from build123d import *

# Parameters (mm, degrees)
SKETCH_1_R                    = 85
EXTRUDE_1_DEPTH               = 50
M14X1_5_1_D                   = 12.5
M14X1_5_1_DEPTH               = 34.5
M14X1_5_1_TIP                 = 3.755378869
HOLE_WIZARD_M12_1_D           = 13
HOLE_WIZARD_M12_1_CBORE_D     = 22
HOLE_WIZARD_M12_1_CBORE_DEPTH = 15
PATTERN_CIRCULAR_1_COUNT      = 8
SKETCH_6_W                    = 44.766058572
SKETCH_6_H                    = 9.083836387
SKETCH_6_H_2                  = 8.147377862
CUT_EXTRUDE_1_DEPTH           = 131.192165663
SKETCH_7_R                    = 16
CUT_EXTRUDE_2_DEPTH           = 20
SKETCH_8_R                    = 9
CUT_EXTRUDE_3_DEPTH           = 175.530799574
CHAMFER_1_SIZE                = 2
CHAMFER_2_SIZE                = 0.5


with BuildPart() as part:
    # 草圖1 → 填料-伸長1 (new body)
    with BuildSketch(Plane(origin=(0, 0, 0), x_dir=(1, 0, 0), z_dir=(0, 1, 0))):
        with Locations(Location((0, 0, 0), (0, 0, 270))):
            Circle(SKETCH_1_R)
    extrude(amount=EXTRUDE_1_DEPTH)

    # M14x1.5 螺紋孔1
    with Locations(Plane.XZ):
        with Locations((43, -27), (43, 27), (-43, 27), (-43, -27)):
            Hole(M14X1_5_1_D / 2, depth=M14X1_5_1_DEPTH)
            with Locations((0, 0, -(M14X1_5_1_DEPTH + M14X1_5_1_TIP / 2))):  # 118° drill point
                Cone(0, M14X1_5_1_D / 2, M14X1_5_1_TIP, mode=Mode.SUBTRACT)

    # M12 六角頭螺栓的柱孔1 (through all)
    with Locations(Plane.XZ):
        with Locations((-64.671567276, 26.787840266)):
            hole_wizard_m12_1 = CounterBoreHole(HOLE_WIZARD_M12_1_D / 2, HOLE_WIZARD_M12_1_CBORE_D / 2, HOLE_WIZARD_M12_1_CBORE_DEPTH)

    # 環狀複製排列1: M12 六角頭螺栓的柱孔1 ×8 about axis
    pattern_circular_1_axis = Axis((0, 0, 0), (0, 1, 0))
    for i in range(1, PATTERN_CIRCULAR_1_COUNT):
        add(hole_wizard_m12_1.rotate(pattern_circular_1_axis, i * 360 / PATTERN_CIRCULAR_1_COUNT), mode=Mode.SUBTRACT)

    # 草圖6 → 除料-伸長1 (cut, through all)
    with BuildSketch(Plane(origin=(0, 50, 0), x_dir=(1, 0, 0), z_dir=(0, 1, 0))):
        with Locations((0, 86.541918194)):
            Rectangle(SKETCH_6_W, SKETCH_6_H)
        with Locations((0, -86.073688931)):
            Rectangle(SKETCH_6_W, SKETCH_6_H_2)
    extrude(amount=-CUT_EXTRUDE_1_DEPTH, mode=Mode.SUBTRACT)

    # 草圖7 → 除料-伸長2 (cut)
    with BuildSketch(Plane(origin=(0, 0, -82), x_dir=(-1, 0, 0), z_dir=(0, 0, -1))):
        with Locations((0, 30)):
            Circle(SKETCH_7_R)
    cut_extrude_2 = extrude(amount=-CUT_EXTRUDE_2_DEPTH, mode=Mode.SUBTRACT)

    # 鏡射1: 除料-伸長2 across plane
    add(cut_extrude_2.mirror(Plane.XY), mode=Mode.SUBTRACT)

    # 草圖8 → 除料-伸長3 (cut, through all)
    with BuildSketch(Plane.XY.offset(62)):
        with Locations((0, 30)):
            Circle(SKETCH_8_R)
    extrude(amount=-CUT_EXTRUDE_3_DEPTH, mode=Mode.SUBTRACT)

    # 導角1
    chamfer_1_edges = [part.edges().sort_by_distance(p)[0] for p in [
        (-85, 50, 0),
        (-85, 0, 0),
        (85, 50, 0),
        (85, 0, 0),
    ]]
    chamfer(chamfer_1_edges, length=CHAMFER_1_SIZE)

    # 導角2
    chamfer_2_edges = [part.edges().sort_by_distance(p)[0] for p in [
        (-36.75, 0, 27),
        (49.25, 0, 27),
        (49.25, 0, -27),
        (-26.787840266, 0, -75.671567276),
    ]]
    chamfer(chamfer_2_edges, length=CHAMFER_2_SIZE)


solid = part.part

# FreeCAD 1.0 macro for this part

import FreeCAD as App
import Part
import Sketcher


def edges_at(feature, points):
    """Names of the edges that pass closest to the given points."""
    edges = feature.Shape.Edges
    near = lambda p: min(range(len(edges)), key=lambda i: edges[i].distToShape(Part.Vertex(*p))[0])
    return sorted({f"Edge{near(p) + 1}" for p in points})


def add_polygon(sketch, points):
    """Adds a closed chain of lines whose ends are joined by coincident constraints."""
    first, n = sketch.GeometryCount, len(points)
    for a, b in zip(points, points[1:] + points[:1]):
        sketch.addGeometry(Part.LineSegment(App.Vector(*a, 0), App.Vector(*b, 0)), False)
    for i in range(n):
        sketch.addConstraint(Sketcher.Constraint("Coincident", first + i, 2, first + (i + 1) % n, 1))

doc = App.newDocument("Part")
body = doc.addObject("PartDesign::Body", "Body")

sketch1 = body.newObject("Sketcher::SketchObject", "Sketch")
sketch1.AttachmentSupport = (doc.getObject("XZ_Plane"), [""])
sketch1.MapMode = "FlatFace"
sketch1.addGeometry(Part.Circle(App.Vector(0, 0, 0), App.Vector(0, 0, 1), 85), False)
sketch1.addConstraint(Sketcher.Constraint("Coincident", 0, 3, -1, 1))
sketch1.addConstraint(Sketcher.Constraint("Diameter", 0, 170.0))
pad1 = body.newObject("PartDesign::Pad", "Pad")
pad1.Profile = sketch1
pad1.Length = 50
pad1.Reversed = True

sketch2 = body.newObject("Sketcher::SketchObject", "Sketch001")
sketch2.AttachmentSupport = (doc.getObject("XZ_Plane"), [""])
sketch2.MapMode = "FlatFace"
sketch2.addGeometry(Part.Circle(App.Vector(43, -27, 0), App.Vector(0, 0, 1), 6.25), False)
sketch2.addGeometry(Part.Circle(App.Vector(43, 27, 0), App.Vector(0, 0, 1), 6.25), False)
sketch2.addGeometry(Part.Circle(App.Vector(-43, 27, 0), App.Vector(0, 0, 1), 6.25), False)
sketch2.addGeometry(Part.Circle(App.Vector(-43, -27, 0), App.Vector(0, 0, 1), 6.25), False)
sketch2.addConstraint(Sketcher.Constraint("Equal", 0, 1))
sketch2.addConstraint(Sketcher.Constraint("Equal", 1, 2))
sketch2.addConstraint(Sketcher.Constraint("Equal", 2, 3))
sketch2.addConstraint(Sketcher.Constraint("Symmetric", 0, 3, 2, 3, -1, 1))
sketch2.addConstraint(Sketcher.Constraint("Symmetric", 1, 3, 3, 3, -1, 1))
sketch2.addConstraint(Sketcher.Constraint("Symmetric", 1, 3, 2, 3, -2))
sketch2.addConstraint(Sketcher.Constraint("Diameter", 0, 12.5))
sketch2.addConstraint(Sketcher.Constraint("DistanceX", -1, 1, 0, 3, 43.0))
sketch2.addConstraint(Sketcher.Constraint("DistanceY", 0, 3, -1, 1, 27.0))
doc.recompute()
hole = body.newObject("PartDesign::Hole", "Hole")
hole.Profile = sketch2
hole.ThreadType = "None"
hole.Diameter = 12.5
hole.DepthType = "Dimension"
hole.Depth = 34.5
hole.DrillPoint = "Angled"
hole.DrillPointAngle = 118

sketch3 = body.newObject("Sketcher::SketchObject", "Sketch002")
sketch3.AttachmentSupport = (doc.getObject("XZ_Plane"), [""])
sketch3.MapMode = "FlatFace"
sketch3.addGeometry(Part.Circle(App.Vector(-64.671567, 26.78784, 0), App.Vector(0, 0, 1), 6.5), False)
sketch3.addConstraint(Sketcher.Constraint("Diameter", 0, 13.0))
sketch3.addConstraint(Sketcher.Constraint("DistanceY", -1, 1, 0, 3, 26.78784))
sketch3.addConstraint(Sketcher.Constraint("DistanceX", 0, 3, -1, 1, 64.671567))
doc.recompute()
hole2 = body.newObject("PartDesign::Hole", "Hole001")
hole2.Profile = sketch3
hole2.ThreadType = "None"
hole2.Diameter = 13
hole2.DepthType = "ThroughAll"
hole2.HoleCutType = "Counterbore"
hole2.HoleCutDiameter = 22
hole2.HoleCutDepth = 15
doc.recompute()

polarpattern = body.newObject("PartDesign::PolarPattern", "PolarPattern")
polarpattern.Originals = [hole2]
polarpattern.Axis = (doc.getObject("Y_Axis"), [""])
polarpattern.Angle = 360
polarpattern.Occurrences = 8
body.Tip = polarpattern

sketch4 = body.newObject("Sketcher::SketchObject", "Sketch003")
sketch4.AttachmentSupport = (doc.getObject("XZ_Plane"), [""])
sketch4.MapMode = "FlatFace"
sketch4.AttachmentOffset = App.Placement(App.Vector(0, 0, -50), App.Rotation())
add_polygon(sketch4, [(-22.383029, -91.083836), (-22.383029, -82), (22.383029, -82), (22.383029, -91.083836)])
add_polygon(sketch4, [(-22.383029, 82), (-22.383029, 90.147378), (22.383029, 90.147378), (22.383029, 82)])
sketch4.addConstraint(Sketcher.Constraint("Vertical", 0))
sketch4.addConstraint(Sketcher.Constraint("Horizontal", 1))
sketch4.addConstraint(Sketcher.Constraint("Vertical", 2))
sketch4.addConstraint(Sketcher.Constraint("Horizontal", 3))
sketch4.addConstraint(Sketcher.Constraint("Vertical", 4))
sketch4.addConstraint(Sketcher.Constraint("Horizontal", 5))
sketch4.addConstraint(Sketcher.Constraint("Vertical", 6))
sketch4.addConstraint(Sketcher.Constraint("Horizontal", 7))
sketch4.addConstraint(Sketcher.Constraint("Symmetric", 0, 2, 6, 2, -1, 1))
sketch4.addConstraint(Sketcher.Constraint("Vertical", 3, 2, 4, 2))
sketch4.addConstraint(Sketcher.Constraint("Vertical", 2, 2, 5, 2))
sketch4.addConstraint(Sketcher.Constraint("DistanceY", 0, 2, -1, 1, 82.0))
sketch4.addConstraint(Sketcher.Constraint("DistanceX", 1, 1, 1, 2, 44.766059))
sketch4.addConstraint(Sketcher.Constraint("DistanceY", 0, 1, 0, 2, 9.083836))
sketch4.addConstraint(Sketcher.Constraint("DistanceY", 4, 1, 4, 2, 8.147378))
pocket1 = body.newObject("PartDesign::Pocket", "Pocket")
pocket1.Profile = sketch4
pocket1.Type = "ThroughAll"
pocket1.Reversed = True

sketch5 = body.newObject("Sketcher::SketchObject", "Sketch004")
sketch5.AttachmentSupport = (doc.getObject("XY_Plane"), [""])
sketch5.MapMode = "FlatFace"
sketch5.AttachmentOffset = App.Placement(App.Vector(0, 0, -82), App.Rotation())
sketch5.addGeometry(Part.Circle(App.Vector(0, 30, 0), App.Vector(0, 0, 1), 16), False)
sketch5.addConstraint(Sketcher.Constraint("PointOnObject", 0, 3, -2))
sketch5.addConstraint(Sketcher.Constraint("Diameter", 0, 32.0))
sketch5.addConstraint(Sketcher.Constraint("DistanceY", -1, 1, 0, 3, 30.0))
pocket2 = body.newObject("PartDesign::Pocket", "Pocket001")
pocket2.Profile = sketch5
pocket2.Length = 20
pocket2.Reversed = True
doc.recompute()

mirrored = body.newObject("PartDesign::Mirrored", "Mirrored")
mirrored.Originals = [pocket2]
mirrored.MirrorPlane = (doc.getObject("XY_Plane"), [""])
body.Tip = mirrored

sketch6 = body.newObject("Sketcher::SketchObject", "Sketch005")
sketch6.AttachmentSupport = (doc.getObject("XY_Plane"), [""])
sketch6.MapMode = "FlatFace"
sketch6.AttachmentOffset = App.Placement(App.Vector(0, 0, 62), App.Rotation())
sketch6.addGeometry(Part.Circle(App.Vector(0, 30, 0), App.Vector(0, 0, 1), 9), False)
sketch6.addConstraint(Sketcher.Constraint("PointOnObject", 0, 3, -2))
sketch6.addConstraint(Sketcher.Constraint("Diameter", 0, 18.0))
sketch6.addConstraint(Sketcher.Constraint("DistanceY", -1, 1, 0, 3, 30.0))
pocket3 = body.newObject("PartDesign::Pocket", "Pocket002")
pocket3.Profile = sketch6
pocket3.Type = "ThroughAll"
doc.recompute()

chamfer = body.newObject("PartDesign::Chamfer", "Chamfer")
chamfer.Base = (pocket3, edges_at(pocket3, [
    (-85, 50, 0),
    (-85, 0, 0),
    (85, 50, 0),
    (85, 0, 0),
]))
chamfer.Size = 2
doc.recompute()

chamfer2 = body.newObject("PartDesign::Chamfer", "Chamfer001")
chamfer2.Base = (chamfer, edges_at(chamfer, [
    (-36.75, 0, 27),
    (49.25, 0, 27),
    (49.25, 0, -27),
    (-26.788, 0, -75.672),
]))
chamfer2.Size = 0.5

doc.recompute()
